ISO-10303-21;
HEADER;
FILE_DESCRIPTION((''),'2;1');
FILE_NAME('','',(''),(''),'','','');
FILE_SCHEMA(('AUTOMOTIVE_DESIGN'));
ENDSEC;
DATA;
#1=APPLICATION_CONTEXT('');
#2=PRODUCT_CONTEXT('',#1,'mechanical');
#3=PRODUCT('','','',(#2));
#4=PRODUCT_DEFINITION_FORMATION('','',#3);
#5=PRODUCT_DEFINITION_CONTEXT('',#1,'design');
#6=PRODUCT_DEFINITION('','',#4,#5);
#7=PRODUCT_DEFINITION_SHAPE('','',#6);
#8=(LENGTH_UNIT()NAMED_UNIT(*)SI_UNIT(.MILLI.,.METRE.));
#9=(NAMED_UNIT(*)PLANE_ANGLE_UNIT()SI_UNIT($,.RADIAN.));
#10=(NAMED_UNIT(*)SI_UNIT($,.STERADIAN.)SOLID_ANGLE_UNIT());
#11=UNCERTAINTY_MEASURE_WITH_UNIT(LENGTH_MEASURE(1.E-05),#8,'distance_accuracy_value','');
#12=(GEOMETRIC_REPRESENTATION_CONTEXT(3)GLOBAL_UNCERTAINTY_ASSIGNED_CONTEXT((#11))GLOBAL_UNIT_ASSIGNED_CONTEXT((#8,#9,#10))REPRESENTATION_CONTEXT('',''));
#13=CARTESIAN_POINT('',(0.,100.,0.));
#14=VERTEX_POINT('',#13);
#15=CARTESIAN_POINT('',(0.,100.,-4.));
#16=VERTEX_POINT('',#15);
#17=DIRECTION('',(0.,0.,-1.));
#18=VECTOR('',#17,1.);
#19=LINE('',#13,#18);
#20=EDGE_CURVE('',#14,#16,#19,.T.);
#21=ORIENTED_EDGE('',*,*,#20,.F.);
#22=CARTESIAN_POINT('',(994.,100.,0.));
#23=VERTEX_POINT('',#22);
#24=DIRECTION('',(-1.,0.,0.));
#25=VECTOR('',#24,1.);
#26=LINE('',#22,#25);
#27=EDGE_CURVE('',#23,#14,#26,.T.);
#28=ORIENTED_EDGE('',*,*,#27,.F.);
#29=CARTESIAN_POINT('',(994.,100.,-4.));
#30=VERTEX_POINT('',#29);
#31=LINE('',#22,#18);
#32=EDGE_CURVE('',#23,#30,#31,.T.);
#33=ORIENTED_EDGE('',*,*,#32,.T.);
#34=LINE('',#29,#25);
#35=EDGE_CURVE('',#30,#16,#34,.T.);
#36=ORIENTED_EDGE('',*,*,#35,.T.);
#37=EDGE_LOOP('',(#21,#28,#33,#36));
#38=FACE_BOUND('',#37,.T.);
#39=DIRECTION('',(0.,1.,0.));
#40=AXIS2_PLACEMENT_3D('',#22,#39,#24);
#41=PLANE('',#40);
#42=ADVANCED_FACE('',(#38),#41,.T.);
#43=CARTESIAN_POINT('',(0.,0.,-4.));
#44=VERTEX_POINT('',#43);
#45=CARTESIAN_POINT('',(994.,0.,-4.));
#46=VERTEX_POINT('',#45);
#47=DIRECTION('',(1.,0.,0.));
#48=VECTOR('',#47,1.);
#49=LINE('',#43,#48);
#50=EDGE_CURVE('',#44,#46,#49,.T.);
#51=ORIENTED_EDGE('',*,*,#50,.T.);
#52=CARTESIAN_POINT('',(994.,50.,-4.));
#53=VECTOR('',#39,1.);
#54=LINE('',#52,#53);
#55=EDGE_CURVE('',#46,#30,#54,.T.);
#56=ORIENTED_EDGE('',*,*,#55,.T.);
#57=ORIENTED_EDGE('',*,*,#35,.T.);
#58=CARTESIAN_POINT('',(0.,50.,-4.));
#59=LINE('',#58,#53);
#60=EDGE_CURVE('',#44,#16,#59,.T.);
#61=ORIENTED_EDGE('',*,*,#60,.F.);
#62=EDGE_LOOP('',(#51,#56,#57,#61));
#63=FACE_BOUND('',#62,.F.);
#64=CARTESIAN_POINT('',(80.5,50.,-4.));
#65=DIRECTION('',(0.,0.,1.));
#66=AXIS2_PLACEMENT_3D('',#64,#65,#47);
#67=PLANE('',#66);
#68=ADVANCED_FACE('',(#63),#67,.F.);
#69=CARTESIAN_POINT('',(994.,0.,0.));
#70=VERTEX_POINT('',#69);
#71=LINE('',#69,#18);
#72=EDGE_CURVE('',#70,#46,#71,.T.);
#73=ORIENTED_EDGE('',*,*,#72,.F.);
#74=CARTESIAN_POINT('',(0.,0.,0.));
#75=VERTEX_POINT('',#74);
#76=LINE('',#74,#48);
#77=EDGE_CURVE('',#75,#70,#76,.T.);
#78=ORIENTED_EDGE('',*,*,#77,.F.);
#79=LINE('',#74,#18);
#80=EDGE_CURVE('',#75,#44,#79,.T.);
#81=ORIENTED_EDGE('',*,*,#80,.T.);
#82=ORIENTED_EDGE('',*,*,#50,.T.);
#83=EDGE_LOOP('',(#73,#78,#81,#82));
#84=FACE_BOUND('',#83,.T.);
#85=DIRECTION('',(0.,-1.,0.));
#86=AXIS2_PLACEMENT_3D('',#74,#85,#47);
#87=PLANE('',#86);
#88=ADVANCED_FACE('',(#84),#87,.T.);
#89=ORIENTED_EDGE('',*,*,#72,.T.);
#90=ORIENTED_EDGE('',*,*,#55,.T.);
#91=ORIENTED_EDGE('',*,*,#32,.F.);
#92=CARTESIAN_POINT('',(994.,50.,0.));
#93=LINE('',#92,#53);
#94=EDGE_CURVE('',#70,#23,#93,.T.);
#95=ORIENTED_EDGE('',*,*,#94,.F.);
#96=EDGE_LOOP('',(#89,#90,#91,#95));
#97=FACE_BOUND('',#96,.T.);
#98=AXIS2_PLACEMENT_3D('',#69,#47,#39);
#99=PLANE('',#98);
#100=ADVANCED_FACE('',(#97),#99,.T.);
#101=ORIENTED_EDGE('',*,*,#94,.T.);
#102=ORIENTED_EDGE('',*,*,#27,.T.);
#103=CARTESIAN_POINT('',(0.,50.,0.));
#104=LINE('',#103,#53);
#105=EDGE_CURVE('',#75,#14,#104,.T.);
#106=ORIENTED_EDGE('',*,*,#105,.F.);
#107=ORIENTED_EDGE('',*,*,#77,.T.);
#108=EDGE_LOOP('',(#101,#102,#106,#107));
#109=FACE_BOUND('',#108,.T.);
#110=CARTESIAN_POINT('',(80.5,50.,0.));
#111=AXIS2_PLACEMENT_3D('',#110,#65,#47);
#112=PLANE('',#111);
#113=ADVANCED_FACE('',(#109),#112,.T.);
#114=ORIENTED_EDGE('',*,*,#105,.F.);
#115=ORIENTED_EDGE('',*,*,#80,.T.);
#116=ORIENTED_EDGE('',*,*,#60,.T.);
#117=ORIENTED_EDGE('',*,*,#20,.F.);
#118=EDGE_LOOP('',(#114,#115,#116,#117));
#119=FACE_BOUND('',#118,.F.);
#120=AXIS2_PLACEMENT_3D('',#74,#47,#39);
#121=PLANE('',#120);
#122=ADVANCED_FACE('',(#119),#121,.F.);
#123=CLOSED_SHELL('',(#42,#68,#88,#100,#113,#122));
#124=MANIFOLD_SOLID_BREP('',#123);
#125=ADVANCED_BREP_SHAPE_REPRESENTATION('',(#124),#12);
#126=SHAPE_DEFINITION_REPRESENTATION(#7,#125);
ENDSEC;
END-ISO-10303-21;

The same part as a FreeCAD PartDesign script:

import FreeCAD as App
import Part
import Sketcher
from FreeCAD import Vector
Q = App.Units.Quantity

doc = App.newDocument("Part")
body = doc.addObject("PartDesign::Body", "Body")

sketch1 = body.newObject("Sketcher::SketchObject", "Sketch")
sketch1.AttachmentSupport = (doc.getObject("XY_Plane"), [""])
sketch1.MapMode = "FlatFace"
sketch1.addGeometry([
    Part.LineSegment(Vector(0, 100, 0), Vector(0, 0, 0)),
    Part.LineSegment(Vector(0, 0, 0), Vector(994, 0, 0)),
    Part.LineSegment(Vector(994, 0, 0), Vector(994, 100, 0)),
    Part.LineSegment(Vector(994, 100, 0), Vector(0, 100, 0)),
], False)
sketch1.addConstraint([
    Sketcher.Constraint("Coincident", 0, 2, 1, 1),
    Sketcher.Constraint("Coincident", 1, 2, 2, 1),
    Sketcher.Constraint("Coincident", 2, 2, 3, 1),
    Sketcher.Constraint("Coincident", 3, 2, 0, 1),
    Sketcher.Constraint("Vertical", 0),
    Sketcher.Constraint("Horizontal", 1),
    Sketcher.Constraint("Vertical", 2),
    Sketcher.Constraint("Horizontal", 3),
    Sketcher.Constraint("Coincident", 0, 2, -1, 1),
    Sketcher.Constraint("DistanceX", 1, 1, 1, 2, Q("994 mm")),
    Sketcher.Constraint("DistanceY", 0, 2, 0, 1, Q("100 mm")),
])
pad1 = body.newObject("PartDesign::Pad", "Pad")
pad1.Profile = sketch1
pad1.Length = 4
pad1.Reversed = True

doc.recompute()
